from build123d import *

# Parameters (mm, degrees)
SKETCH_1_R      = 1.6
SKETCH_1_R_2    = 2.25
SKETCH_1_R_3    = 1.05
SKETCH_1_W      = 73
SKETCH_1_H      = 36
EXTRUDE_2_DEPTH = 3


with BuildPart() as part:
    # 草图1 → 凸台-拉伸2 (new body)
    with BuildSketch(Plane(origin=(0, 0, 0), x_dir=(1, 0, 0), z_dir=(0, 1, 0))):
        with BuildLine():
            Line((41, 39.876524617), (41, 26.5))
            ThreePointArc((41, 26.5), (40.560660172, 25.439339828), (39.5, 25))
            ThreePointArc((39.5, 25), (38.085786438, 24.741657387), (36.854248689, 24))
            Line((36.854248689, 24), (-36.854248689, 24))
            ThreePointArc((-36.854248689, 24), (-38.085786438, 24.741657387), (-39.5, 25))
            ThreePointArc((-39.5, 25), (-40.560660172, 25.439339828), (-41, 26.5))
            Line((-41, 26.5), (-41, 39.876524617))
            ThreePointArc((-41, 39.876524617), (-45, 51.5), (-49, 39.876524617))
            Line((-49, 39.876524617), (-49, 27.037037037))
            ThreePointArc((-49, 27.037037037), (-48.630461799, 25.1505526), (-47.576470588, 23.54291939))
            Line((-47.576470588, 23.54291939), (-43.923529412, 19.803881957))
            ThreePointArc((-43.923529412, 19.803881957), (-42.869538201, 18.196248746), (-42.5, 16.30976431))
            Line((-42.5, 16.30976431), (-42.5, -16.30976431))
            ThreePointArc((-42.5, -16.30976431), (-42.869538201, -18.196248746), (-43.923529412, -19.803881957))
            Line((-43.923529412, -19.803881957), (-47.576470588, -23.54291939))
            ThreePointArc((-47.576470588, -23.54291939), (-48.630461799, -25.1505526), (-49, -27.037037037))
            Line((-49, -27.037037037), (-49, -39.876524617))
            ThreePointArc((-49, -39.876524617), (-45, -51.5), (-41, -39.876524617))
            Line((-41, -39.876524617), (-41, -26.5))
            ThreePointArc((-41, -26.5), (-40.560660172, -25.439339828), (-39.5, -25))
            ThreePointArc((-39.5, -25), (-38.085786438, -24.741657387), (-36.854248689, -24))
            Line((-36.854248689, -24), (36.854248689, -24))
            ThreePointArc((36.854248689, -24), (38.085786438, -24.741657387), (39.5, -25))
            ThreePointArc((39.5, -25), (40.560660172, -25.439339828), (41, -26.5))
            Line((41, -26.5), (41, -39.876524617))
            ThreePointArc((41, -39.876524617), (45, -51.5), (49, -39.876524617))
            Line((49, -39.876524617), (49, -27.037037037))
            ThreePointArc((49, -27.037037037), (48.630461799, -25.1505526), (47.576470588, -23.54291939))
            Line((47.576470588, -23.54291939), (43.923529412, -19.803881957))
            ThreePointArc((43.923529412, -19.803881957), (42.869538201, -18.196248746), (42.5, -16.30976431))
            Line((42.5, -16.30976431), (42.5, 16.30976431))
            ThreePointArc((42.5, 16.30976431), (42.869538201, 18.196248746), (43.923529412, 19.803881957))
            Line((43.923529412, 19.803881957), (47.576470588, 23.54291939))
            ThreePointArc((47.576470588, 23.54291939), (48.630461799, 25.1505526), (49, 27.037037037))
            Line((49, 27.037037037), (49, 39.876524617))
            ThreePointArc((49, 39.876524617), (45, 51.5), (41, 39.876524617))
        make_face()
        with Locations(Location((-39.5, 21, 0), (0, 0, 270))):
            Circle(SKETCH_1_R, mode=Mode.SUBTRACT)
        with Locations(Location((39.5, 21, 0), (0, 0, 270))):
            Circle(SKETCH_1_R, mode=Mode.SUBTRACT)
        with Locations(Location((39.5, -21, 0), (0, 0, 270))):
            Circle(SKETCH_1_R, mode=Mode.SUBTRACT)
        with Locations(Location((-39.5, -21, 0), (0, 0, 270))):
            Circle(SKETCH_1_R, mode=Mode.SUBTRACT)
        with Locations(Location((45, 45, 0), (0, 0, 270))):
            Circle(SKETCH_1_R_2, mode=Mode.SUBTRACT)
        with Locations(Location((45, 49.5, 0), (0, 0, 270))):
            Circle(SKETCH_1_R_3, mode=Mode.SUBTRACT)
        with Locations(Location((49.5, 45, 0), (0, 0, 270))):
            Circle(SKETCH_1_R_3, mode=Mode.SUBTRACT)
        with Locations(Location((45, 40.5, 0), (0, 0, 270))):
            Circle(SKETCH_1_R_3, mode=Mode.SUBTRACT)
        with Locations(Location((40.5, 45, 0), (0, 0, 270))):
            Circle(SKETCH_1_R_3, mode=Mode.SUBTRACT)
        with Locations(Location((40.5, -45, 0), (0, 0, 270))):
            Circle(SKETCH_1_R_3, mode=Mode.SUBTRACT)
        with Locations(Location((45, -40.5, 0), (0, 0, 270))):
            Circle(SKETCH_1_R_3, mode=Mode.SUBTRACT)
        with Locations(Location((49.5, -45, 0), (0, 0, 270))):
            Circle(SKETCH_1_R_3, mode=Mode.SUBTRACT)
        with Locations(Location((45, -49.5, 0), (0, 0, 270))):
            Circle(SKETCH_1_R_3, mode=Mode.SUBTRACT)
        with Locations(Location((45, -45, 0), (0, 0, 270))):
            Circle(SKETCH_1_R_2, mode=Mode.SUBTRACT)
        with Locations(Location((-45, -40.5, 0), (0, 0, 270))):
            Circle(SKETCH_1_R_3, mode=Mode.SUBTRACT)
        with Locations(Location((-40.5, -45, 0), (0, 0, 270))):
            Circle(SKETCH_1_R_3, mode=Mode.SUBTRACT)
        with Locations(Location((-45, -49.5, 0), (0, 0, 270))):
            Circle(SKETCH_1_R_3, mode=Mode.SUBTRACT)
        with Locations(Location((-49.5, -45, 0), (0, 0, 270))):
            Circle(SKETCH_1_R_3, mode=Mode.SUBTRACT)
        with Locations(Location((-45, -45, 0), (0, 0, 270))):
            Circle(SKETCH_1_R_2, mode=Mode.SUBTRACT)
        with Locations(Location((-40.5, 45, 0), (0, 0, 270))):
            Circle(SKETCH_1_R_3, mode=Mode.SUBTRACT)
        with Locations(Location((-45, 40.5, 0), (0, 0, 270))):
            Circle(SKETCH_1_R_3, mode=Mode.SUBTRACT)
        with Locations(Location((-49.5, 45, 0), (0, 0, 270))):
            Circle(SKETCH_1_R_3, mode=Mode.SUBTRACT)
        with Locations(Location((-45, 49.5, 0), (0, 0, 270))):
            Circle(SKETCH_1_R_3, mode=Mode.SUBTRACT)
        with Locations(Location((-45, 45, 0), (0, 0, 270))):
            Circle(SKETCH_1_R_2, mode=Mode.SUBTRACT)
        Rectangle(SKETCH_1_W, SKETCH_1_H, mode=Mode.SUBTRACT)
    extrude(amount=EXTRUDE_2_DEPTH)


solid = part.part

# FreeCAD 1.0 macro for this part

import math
import FreeCAD as App
import Part
import Sketcher

V = App.Vector

doc = App.newDocument("Part")
body = doc.addObject("PartDesign::Body", "Body")

# Sketch on XZ plane
sketch1 = body.newObject("Sketcher::SketchObject", "Sketch")
sketch1.AttachmentSupport = (doc.getObject("XZ_Plane"), [""])
sketch1.MapMode = "FlatFace"
sketch1.addGeometry([
    Part.LineSegment(V(41, -39.9, 0), V(41, -26.5, 0)),  # 0
    Part.ArcOfCircle(Part.Circle(V(39.5, -26.5, 0), V(0, 0, 1), 1.5), math.radians(0), math.radians(90)),  # 1
    Part.ArcOfCircle(Part.Circle(V(39.5, -21, 0), V(0, 0, 1), 4), math.radians(-131), math.radians(-90)),  # 2
    Part.LineSegment(V(36.9, -24, 0), V(-36.9, -24, 0)),  # 3
    Part.ArcOfCircle(Part.Circle(V(-39.5, -21, 0), V(0, 0, 1), 4), math.radians(-90), math.radians(-49)),  # 4
    Part.ArcOfCircle(Part.Circle(V(-39.5, -26.5, 0), V(0, 0, 1), 1.5), math.radians(90), math.radians(180)),  # 5
    Part.LineSegment(V(-41, -26.5, 0), V(-41, -39.9, 0)),  # 6
    Part.ArcOfCircle(Part.Circle(V(-45, -45, 0), V(0, 0, 1), 6.5), math.radians(128), math.radians(412)),  # 7
    Part.LineSegment(V(-49, -39.9, 0), V(-49, -27, 0)),  # 8
    Part.ArcOfCircle(Part.Circle(V(-44, -27, 0), V(0, 0, 1), 5), math.radians(136), math.radians(180)),  # 9
    Part.LineSegment(V(-47.6, -23.5, 0), V(-43.9, -19.8, 0)),  # 10
    Part.ArcOfCircle(Part.Circle(V(-47.5, -16.3, 0), V(0, 0, 1), 5), math.radians(-44), math.radians(0)),  # 11
    Part.LineSegment(V(-42.5, -16.3, 0), V(-42.5, 16.3, 0)),  # 12
    Part.ArcOfCircle(Part.Circle(V(-47.5, 16.3, 0), V(0, 0, 1), 5), math.radians(0), math.radians(44)),  # 13
    Part.LineSegment(V(-43.9, 19.8, 0), V(-47.6, 23.5, 0)),  # 14
    Part.ArcOfCircle(Part.Circle(V(-44, 27, 0), V(0, 0, 1), 5), math.radians(180), math.radians(224)),  # 15
    Part.LineSegment(V(-49, 27, 0), V(-49, 39.9, 0)),  # 16
    Part.ArcOfCircle(Part.Circle(V(-45, 45, 0), V(0, 0, 1), 6.5), math.radians(-52), math.radians(232)),  # 17
    Part.LineSegment(V(-41, 39.9, 0), V(-41, 26.5, 0)),  # 18
    Part.ArcOfCircle(Part.Circle(V(-39.5, 26.5, 0), V(0, 0, 1), 1.5), math.radians(180), math.radians(270)),  # 19
    Part.ArcOfCircle(Part.Circle(V(-39.5, 21, 0), V(0, 0, 1), 4), math.radians(49), math.radians(90)),  # 20
    Part.LineSegment(V(-36.9, 24, 0), V(36.9, 24, 0)),  # 21
    Part.ArcOfCircle(Part.Circle(V(39.5, 21, 0), V(0, 0, 1), 4), math.radians(90), math.radians(131)),  # 22
    Part.ArcOfCircle(Part.Circle(V(39.5, 26.5, 0), V(0, 0, 1), 1.5), math.radians(-90), math.radians(0)),  # 23
    Part.LineSegment(V(41, 26.5, 0), V(41, 39.9, 0)),  # 24
    Part.ArcOfCircle(Part.Circle(V(45, 45, 0), V(0, 0, 1), 6.5), math.radians(-52), math.radians(232)),  # 25
    Part.LineSegment(V(49, 39.9, 0), V(49, 27, 0)),  # 26
    Part.ArcOfCircle(Part.Circle(V(44, 27, 0), V(0, 0, 1), 5), math.radians(-44), math.radians(0)),  # 27
    Part.LineSegment(V(47.6, 23.5, 0), V(43.9, 19.8, 0)),  # 28
    Part.ArcOfCircle(Part.Circle(V(47.5, 16.3, 0), V(0, 0, 1), 5), math.radians(136), math.radians(180)),  # 29
    Part.LineSegment(V(42.5, 16.3, 0), V(42.5, -16.3, 0)),  # 30
    Part.ArcOfCircle(Part.Circle(V(47.5, -16.3, 0), V(0, 0, 1), 5), math.radians(180), math.radians(224)),  # 31
    Part.LineSegment(V(43.9, -19.8, 0), V(47.6, -23.5, 0)),  # 32
    Part.ArcOfCircle(Part.Circle(V(44, -27, 0), V(0, 0, 1), 5), math.radians(0), math.radians(44)),  # 33
    Part.LineSegment(V(49, -27, 0), V(49, -39.9, 0)),  # 34
    Part.ArcOfCircle(Part.Circle(V(45, -45, 0), V(0, 0, 1), 6.5), math.radians(128), math.radians(412)),  # 35
    Part.Circle(V(-45, 49.5, 0), V(0, 0, 1), 1.1),  # 36
    Part.Circle(V(-49.5, 45, 0), V(0, 0, 1), 1.1),  # 37
    Part.Circle(V(-45, 45, 0), V(0, 0, 1), 2.2),  # 38
    Part.Circle(V(-40.5, 45, 0), V(0, 0, 1), 1.1),  # 39
    Part.Circle(V(-45, 40.5, 0), V(0, 0, 1), 1.1),  # 40
    Part.Circle(V(-39.5, 21, 0), V(0, 0, 1), 1.6),  # 41
    Part.Circle(V(40.5, 45, 0), V(0, 0, 1), 1.1),  # 42
    Part.Circle(V(45, 49.5, 0), V(0, 0, 1), 1.1),  # 43
    Part.Circle(V(45, 45, 0), V(0, 0, 1), 2.2),  # 44
    Part.Circle(V(49.5, 45, 0), V(0, 0, 1), 1.1),  # 45
    Part.Circle(V(45, 40.5, 0), V(0, 0, 1), 1.1),  # 46
    Part.Circle(V(39.5, 21, 0), V(0, 0, 1), 1.6),  # 47
    Part.Circle(V(-39.5, -21, 0), V(0, 0, 1), 1.6),  # 48
    Part.Circle(V(-45, -40.5, 0), V(0, 0, 1), 1.1),  # 49
    Part.Circle(V(-49.5, -45, 0), V(0, 0, 1), 1.1),  # 50
    Part.Circle(V(-45, -45, 0), V(0, 0, 1), 2.2),  # 51
    Part.Circle(V(-45, -49.5, 0), V(0, 0, 1), 1.1),  # 52
    Part.Circle(V(-40.5, -45, 0), V(0, 0, 1), 1.1),  # 53
    Part.LineSegment(V(36.5, 18, 0), V(-36.5, 18, 0)),  # 54
    Part.LineSegment(V(-36.5, 18, 0), V(-36.5, -18, 0)),  # 55
    Part.LineSegment(V(-36.5, -18, 0), V(36.5, -18, 0)),  # 56
    Part.LineSegment(V(36.5, -18, 0), V(36.5, 18, 0)),  # 57
    Part.Circle(V(39.5, -21, 0), V(0, 0, 1), 1.6),  # 58
    Part.Circle(V(45, -40.5, 0), V(0, 0, 1), 1.1),  # 59
    Part.Circle(V(40.5, -45, 0), V(0, 0, 1), 1.1),  # 60
    Part.Circle(V(45, -45, 0), V(0, 0, 1), 2.2),  # 61
    Part.Circle(V(49.5, -45, 0), V(0, 0, 1), 1.1),  # 62
    Part.Circle(V(45, -49.5, 0), V(0, 0, 1), 1.1),  # 63
], False)
sketch1.addConstraint([
    Sketcher.Constraint("Tangent", 0, 2, 1, 1),
    Sketcher.Constraint("Tangent", 1, 2, 2, 2),
    Sketcher.Constraint("Coincident", 2, 1, 3, 1),
    Sketcher.Constraint("Coincident", 3, 2, 4, 2),
    Sketcher.Constraint("Tangent", 4, 1, 5, 1),
    Sketcher.Constraint("Tangent", 5, 2, 6, 1),
    Sketcher.Constraint("Coincident", 6, 2, 7, 2),
    Sketcher.Constraint("Coincident", 7, 1, 8, 1),
    Sketcher.Constraint("Tangent", 8, 2, 9, 2),
    Sketcher.Constraint("Tangent", 9, 1, 10, 1),
    Sketcher.Constraint("Tangent", 10, 2, 11, 1),
    Sketcher.Constraint("Tangent", 11, 2, 12, 1),
    Sketcher.Constraint("Tangent", 12, 2, 13, 1),
    Sketcher.Constraint("Tangent", 13, 2, 14, 1),
    Sketcher.Constraint("Tangent", 14, 2, 15, 2),
    Sketcher.Constraint("Tangent", 15, 1, 16, 1),
    Sketcher.Constraint("Coincident", 16, 2, 17, 2),
    Sketcher.Constraint("Coincident", 17, 1, 18, 1),
    Sketcher.Constraint("Tangent", 18, 2, 19, 1),
    Sketcher.Constraint("Tangent", 19, 2, 20, 2),
    Sketcher.Constraint("Coincident", 20, 1, 21, 1),
    Sketcher.Constraint("Coincident", 21, 2, 22, 2),
    Sketcher.Constraint("Tangent", 22, 1, 23, 1),
    Sketcher.Constraint("Tangent", 23, 2, 24, 1),
    Sketcher.Constraint("Coincident", 24, 2, 25, 2),
    Sketcher.Constraint("Coincident", 25, 1, 26, 1),
    Sketcher.Constraint("Tangent", 26, 2, 27, 2),
    Sketcher.Constraint("Tangent", 27, 1, 28, 1),
    Sketcher.Constraint("Tangent", 28, 2, 29, 1),
    Sketcher.Constraint("Tangent", 29, 2, 30, 1),
    Sketcher.Constraint("Tangent", 30, 2, 31, 1),
    Sketcher.Constraint("Tangent", 31, 2, 32, 1),
    Sketcher.Constraint("Tangent", 32, 2, 33, 2),
    Sketcher.Constraint("Tangent", 33, 1, 34, 1),
    Sketcher.Constraint("Coincident", 34, 2, 35, 2),
    Sketcher.Constraint("Coincident", 35, 1, 0, 1),
    Sketcher.Constraint("Coincident", 54, 2, 55, 1),
    Sketcher.Constraint("Coincident", 55, 2, 56, 1),
    Sketcher.Constraint("Coincident", 56, 2, 57, 1),
    Sketcher.Constraint("Coincident", 57, 2, 54, 1),
    Sketcher.Constraint("Vertical", 0),
    Sketcher.Constraint("Horizontal", 3),
    Sketcher.Constraint("Vertical", 6),
    Sketcher.Constraint("Vertical", 8),
    Sketcher.Constraint("Vertical", 12),
    Sketcher.Constraint("Vertical", 16),
    Sketcher.Constraint("Vertical", 18),
    Sketcher.Constraint("Horizontal", 21),
    Sketcher.Constraint("Vertical", 24),
    Sketcher.Constraint("Vertical", 26),
    Sketcher.Constraint("Vertical", 30),
    Sketcher.Constraint("Vertical", 34),
    Sketcher.Constraint("Horizontal", 54),
    Sketcher.Constraint("Vertical", 55),
    Sketcher.Constraint("Horizontal", 56),
    Sketcher.Constraint("Vertical", 57),
    Sketcher.Constraint("Coincident", 38, 3, 17, 3),
    Sketcher.Constraint("Coincident", 41, 3, 20, 3),
    Sketcher.Constraint("Coincident", 44, 3, 25, 3),
    Sketcher.Constraint("Coincident", 47, 3, 22, 3),
    Sketcher.Constraint("Coincident", 48, 3, 4, 3),
    Sketcher.Constraint("Coincident", 51, 3, 7, 3),
    Sketcher.Constraint("Coincident", 58, 3, 2, 3),
    Sketcher.Constraint("Coincident", 61, 3, 35, 3),
    Sketcher.Constraint("Equal", 2, 4),
    Sketcher.Constraint("Equal", 1, 5),
    Sketcher.Constraint("Equal", 9, 11),
    Sketcher.Constraint("Equal", 11, 13),
    Sketcher.Constraint("Equal", 13, 15),
    Sketcher.Constraint("Equal", 7, 17),
    Sketcher.Constraint("Equal", 5, 19),
    Sketcher.Constraint("Equal", 4, 20),
    Sketcher.Constraint("Equal", 20, 22),
    Sketcher.Constraint("Equal", 19, 23),
    Sketcher.Constraint("Equal", 17, 25),
    Sketcher.Constraint("Equal", 15, 27),
    Sketcher.Constraint("Equal", 27, 29),
    Sketcher.Constraint("Equal", 29, 31),
    Sketcher.Constraint("Equal", 31, 33),
    Sketcher.Constraint("Equal", 25, 35),
    Sketcher.Constraint("Equal", 36, 37),
    Sketcher.Constraint("Equal", 37, 39),
    Sketcher.Constraint("Equal", 39, 40),
    Sketcher.Constraint("Equal", 40, 42),
    Sketcher.Constraint("Equal", 42, 43),
    Sketcher.Constraint("Equal", 38, 44),
    Sketcher.Constraint("Equal", 43, 45),
    Sketcher.Constraint("Equal", 45, 46),
    Sketcher.Constraint("Equal", 41, 47),
    Sketcher.Constraint("Equal", 47, 48),
    Sketcher.Constraint("Equal", 46, 49),
    Sketcher.Constraint("Equal", 49, 50),
    Sketcher.Constraint("Equal", 44, 51),
    Sketcher.Constraint("Equal", 50, 52),
    Sketcher.Constraint("Equal", 52, 53),
    Sketcher.Constraint("Equal", 48, 58),
    Sketcher.Constraint("Equal", 53, 59),
    Sketcher.Constraint("Equal", 59, 60),
    Sketcher.Constraint("Equal", 51, 61),
    Sketcher.Constraint("Equal", 60, 62),
    Sketcher.Constraint("Equal", 62, 63),
    Sketcher.Constraint("Symmetric", 1, 3, 19, 3, -1, 1),
    Sketcher.Constraint("Symmetric", 4, 3, 22, 3, -1, 1),
    Sketcher.Constraint("Symmetric", 7, 3, 25, 3, -1, 1),
    Sketcher.Constraint("Symmetric", 9, 3, 27, 3, -1, 1),
    Sketcher.Constraint("Symmetric", 11, 3, 29, 3, -1, 1),
    Sketcher.Constraint("Symmetric", 15, 3, 33, 3, -1, 1),
    Sketcher.Constraint("Symmetric", 17, 3, 35, 3, -1, 1),
    Sketcher.Constraint("Symmetric", 46, 3, 49, 3, -1, 1),
    Sketcher.Constraint("Symmetric", 45, 3, 50, 3, -1, 1),
    Sketcher.Constraint("Symmetric", 43, 3, 52, 3, -1, 1),
    Sketcher.Constraint("Symmetric", 42, 3, 53, 3, -1, 1),
    Sketcher.Constraint("Symmetric", 40, 3, 59, 3, -1, 1),
    Sketcher.Constraint("Symmetric", 39, 3, 60, 3, -1, 1),
    Sketcher.Constraint("Symmetric", 37, 3, 62, 3, -1, 1),
    Sketcher.Constraint("Symmetric", 36, 3, 63, 3, -1, 1),
    Sketcher.Constraint("Symmetric", 2, 1, 20, 1, -1, 1),
    Sketcher.Constraint("Symmetric", 54, 2, 56, 2, -1, 1),
    Sketcher.Constraint("Symmetric", 2, 3, 4, 3, -2),
    Sketcher.Constraint("Symmetric", 17, 3, 25, 3, -2),
    Sketcher.Constraint("Symmetric", 15, 3, 27, 3, -2),
    Sketcher.Constraint("Symmetric", 39, 3, 42, 3, -2),
    Sketcher.Constraint("Symmetric", 36, 3, 43, 3, -2),
    Sketcher.Constraint("Symmetric", 37, 3, 45, 3, -2),
    Sketcher.Constraint("Symmetric", 40, 3, 46, 3, -2),
    Sketcher.Constraint("Parallel", 14, 32),
    Sketcher.Constraint("Horizontal", 13, 3, 29, 3),
    Sketcher.Constraint("Horizontal", 25, 3, 37, 3),
    Sketcher.Constraint("Horizontal", 38, 3, 39, 3),
    Sketcher.Constraint("Horizontal", 6, 2, 7, 1),
    Sketcher.Constraint("Horizontal", 16, 2, 17, 1),
    Sketcher.Constraint("Horizontal", 17, 1, 24, 2),
    Sketcher.Constraint("Vertical", 1, 3, 2, 3),
    Sketcher.Constraint("Vertical", 17, 3, 36, 3),
    Sketcher.Constraint("Vertical", 38, 3, 40, 3),
    Sketcher.Constraint("Radius", 2, 4.0),
    Sketcher.Constraint("Radius", 9, 5.0),
    Sketcher.Constraint("Diameter", 36, 2.1),
    Sketcher.Constraint("Diameter", 38, 4.5),
    Sketcher.Constraint("Diameter", 41, 3.2),
    Sketcher.Constraint("Radius", 1, 1.5),
    Sketcher.Constraint("Radius", 7, 6.5),
    Sketcher.Constraint("DistanceX", 54, 2, 54, 1, 73.0),
    Sketcher.Constraint("DistanceY", 55, 2, 55, 1, 36.0),
    Sketcher.Constraint("DistanceY", 2, 3, -1, 1, 21.0),
    Sketcher.Constraint("DistanceX", 7, 3, -1, 1, 45.0),
    Sketcher.Constraint("DistanceY", 7, 3, -1, 1, 45.0),
    Sketcher.Constraint("DistanceX", 9, 3, -1, 1, 44.0),
    Sketcher.Constraint("DistanceY", 2, 1, -1, 1, 24.0),
    Sketcher.Constraint("DistanceX", 11, 3, -1, 1, 47.5),
    Sketcher.Constraint("DistanceY", -1, 1, 36, 3, 49.5),
    Sketcher.Constraint("DistanceX", 37, 3, -1, 1, 49.5),
    Sketcher.Constraint("DistanceX", 39, 3, -1, 1, 40.5),
    Sketcher.Constraint("DistanceY", -1, 1, 40, 3, 40.5),
    Sketcher.Constraint("DistanceY", 12, 1, 12, 2, 32.619529),
    Sketcher.Constraint("DistanceY", 8, 1, 8, 2, 12.839488),
])
pad1 = body.newObject("PartDesign::Pad", "Pad")
pad1.Profile = sketch1
pad1.Length = 3
pad1.Reversed = True

doc.recompute()
